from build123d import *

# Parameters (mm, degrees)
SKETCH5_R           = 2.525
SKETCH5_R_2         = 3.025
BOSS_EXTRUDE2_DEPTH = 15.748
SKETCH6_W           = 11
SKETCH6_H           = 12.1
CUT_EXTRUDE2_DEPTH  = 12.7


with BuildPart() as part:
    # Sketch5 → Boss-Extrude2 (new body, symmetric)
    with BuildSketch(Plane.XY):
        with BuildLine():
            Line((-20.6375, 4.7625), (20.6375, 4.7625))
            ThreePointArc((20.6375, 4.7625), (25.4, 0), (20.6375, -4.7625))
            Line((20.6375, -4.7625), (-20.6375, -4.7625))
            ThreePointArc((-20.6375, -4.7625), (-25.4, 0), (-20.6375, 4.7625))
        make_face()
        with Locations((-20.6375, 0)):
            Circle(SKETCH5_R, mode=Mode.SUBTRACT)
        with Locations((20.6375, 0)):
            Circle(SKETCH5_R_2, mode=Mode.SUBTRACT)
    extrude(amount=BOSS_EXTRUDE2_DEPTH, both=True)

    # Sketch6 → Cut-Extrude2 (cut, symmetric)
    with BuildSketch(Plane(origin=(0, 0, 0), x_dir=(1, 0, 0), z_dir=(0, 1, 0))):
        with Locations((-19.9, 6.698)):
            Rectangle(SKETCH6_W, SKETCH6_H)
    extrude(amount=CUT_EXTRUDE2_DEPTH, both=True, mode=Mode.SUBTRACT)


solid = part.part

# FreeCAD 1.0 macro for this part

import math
import FreeCAD as App
import Part
import Sketcher
Q = App.Units.Quantity


def add_polygon(sketch, points):
    """Adds a closed chain of lines whose ends are joined by coincident constraints."""
    first, n = sketch.GeometryCount, len(points)
    for a, b in zip(points, points[1:] + points[:1]):
        sketch.addGeometry(Part.LineSegment(App.Vector(*a, 0), App.Vector(*b, 0)), False)
    for i in range(n):
        sketch.addConstraint(Sketcher.Constraint("Coincident", first + i, 2, first + (i + 1) % n, 1))

doc = App.newDocument("Part")
body = doc.addObject("PartDesign::Body", "Body")

# Sketch on XY plane
sketch1 = body.newObject("Sketcher::SketchObject", "Sketch")
sketch1.AttachmentSupport = (doc.getObject("XY_Plane"), [""])
sketch1.MapMode = "FlatFace"
sketch1.addGeometry([
    Part.LineSegment(App.Vector(20.6, 4.8, 0), App.Vector(-20.6, 4.8, 0)),  # 0
    Part.ArcOfCircle(Part.Circle(App.Vector(-20.6, 0, 0), App.Vector(0, 0, 1), 4.8), math.radians(90), math.radians(270)),  # 1
    Part.LineSegment(App.Vector(-20.6, -4.8, 0), App.Vector(20.6, -4.8, 0)),  # 2
    Part.ArcOfCircle(Part.Circle(App.Vector(20.6, 0, 0), App.Vector(0, 0, 1), 4.8), math.radians(-90), math.radians(90)),  # 3
    Part.Circle(App.Vector(20.6, 0, 0), App.Vector(0, 0, 1), 3),  # 4
    Part.Circle(App.Vector(-20.6, 0, 0), App.Vector(0, 0, 1), 2.5),  # 5
], False)
sketch1.addConstraint([
    Sketcher.Constraint("Tangent", 0, 2, 1, 1),
    Sketcher.Constraint("Tangent", 1, 2, 2, 1),
    Sketcher.Constraint("Tangent", 2, 2, 3, 1),
    Sketcher.Constraint("Tangent", 3, 2, 0, 1),
    Sketcher.Constraint("Horizontal", 0),
    Sketcher.Constraint("Horizontal", 2),
    Sketcher.Constraint("Coincident", 4, 3, 3, 3),
    Sketcher.Constraint("Coincident", 5, 3, 1, 3),
    Sketcher.Constraint("Symmetric", 1, 3, 3, 3, -1, 1),
    Sketcher.Constraint("Radius", 1, Q("0.1875 in")),
    Sketcher.Constraint("Diameter", 4, Q("6.05 mm")),
    Sketcher.Constraint("Diameter", 5, Q("5.05 mm")),
    Sketcher.Constraint("DistanceX", 0, 2, 0, 1, Q("1.625 in")),
])
pad1 = body.newObject("PartDesign::Pad", "Pad")
pad1.Profile = sketch1
pad1.Length = Q("1.24 in")
pad1.Midplane = True

# Sketch on XZ plane
sketch2 = body.newObject("Sketcher::SketchObject", "Sketch001")
sketch2.AttachmentSupport = (doc.getObject("XZ_Plane"), [""])
sketch2.MapMode = "FlatFace"
add_polygon(sketch2, [(-25, -13), (-25, -1), (-14, -1), (-14, -13)])  # lines 0-3
sketch2.addConstraint([
    Sketcher.Constraint("Vertical", 0),
    Sketcher.Constraint("Horizontal", 1),
    Sketcher.Constraint("Vertical", 2),
    Sketcher.Constraint("Horizontal", 3),
    Sketcher.Constraint("DistanceX", 0, 2, -1, 1, Q("1 in")),
    Sketcher.Constraint("DistanceX", 1, 1, 1, 2, Q("11 mm")),
    Sketcher.Constraint("DistanceY", 0, 1, 0, 2, Q("12.1 mm")),
    Sketcher.Constraint("DistanceY", 0, 2, -1, 1, Q("0.648 mm")),
])
pocket1 = body.newObject("PartDesign::Pocket", "Pocket")
pocket1.Profile = sketch2
pocket1.Length = Q("1 in")
pocket1.Midplane = True

doc.recompute()
